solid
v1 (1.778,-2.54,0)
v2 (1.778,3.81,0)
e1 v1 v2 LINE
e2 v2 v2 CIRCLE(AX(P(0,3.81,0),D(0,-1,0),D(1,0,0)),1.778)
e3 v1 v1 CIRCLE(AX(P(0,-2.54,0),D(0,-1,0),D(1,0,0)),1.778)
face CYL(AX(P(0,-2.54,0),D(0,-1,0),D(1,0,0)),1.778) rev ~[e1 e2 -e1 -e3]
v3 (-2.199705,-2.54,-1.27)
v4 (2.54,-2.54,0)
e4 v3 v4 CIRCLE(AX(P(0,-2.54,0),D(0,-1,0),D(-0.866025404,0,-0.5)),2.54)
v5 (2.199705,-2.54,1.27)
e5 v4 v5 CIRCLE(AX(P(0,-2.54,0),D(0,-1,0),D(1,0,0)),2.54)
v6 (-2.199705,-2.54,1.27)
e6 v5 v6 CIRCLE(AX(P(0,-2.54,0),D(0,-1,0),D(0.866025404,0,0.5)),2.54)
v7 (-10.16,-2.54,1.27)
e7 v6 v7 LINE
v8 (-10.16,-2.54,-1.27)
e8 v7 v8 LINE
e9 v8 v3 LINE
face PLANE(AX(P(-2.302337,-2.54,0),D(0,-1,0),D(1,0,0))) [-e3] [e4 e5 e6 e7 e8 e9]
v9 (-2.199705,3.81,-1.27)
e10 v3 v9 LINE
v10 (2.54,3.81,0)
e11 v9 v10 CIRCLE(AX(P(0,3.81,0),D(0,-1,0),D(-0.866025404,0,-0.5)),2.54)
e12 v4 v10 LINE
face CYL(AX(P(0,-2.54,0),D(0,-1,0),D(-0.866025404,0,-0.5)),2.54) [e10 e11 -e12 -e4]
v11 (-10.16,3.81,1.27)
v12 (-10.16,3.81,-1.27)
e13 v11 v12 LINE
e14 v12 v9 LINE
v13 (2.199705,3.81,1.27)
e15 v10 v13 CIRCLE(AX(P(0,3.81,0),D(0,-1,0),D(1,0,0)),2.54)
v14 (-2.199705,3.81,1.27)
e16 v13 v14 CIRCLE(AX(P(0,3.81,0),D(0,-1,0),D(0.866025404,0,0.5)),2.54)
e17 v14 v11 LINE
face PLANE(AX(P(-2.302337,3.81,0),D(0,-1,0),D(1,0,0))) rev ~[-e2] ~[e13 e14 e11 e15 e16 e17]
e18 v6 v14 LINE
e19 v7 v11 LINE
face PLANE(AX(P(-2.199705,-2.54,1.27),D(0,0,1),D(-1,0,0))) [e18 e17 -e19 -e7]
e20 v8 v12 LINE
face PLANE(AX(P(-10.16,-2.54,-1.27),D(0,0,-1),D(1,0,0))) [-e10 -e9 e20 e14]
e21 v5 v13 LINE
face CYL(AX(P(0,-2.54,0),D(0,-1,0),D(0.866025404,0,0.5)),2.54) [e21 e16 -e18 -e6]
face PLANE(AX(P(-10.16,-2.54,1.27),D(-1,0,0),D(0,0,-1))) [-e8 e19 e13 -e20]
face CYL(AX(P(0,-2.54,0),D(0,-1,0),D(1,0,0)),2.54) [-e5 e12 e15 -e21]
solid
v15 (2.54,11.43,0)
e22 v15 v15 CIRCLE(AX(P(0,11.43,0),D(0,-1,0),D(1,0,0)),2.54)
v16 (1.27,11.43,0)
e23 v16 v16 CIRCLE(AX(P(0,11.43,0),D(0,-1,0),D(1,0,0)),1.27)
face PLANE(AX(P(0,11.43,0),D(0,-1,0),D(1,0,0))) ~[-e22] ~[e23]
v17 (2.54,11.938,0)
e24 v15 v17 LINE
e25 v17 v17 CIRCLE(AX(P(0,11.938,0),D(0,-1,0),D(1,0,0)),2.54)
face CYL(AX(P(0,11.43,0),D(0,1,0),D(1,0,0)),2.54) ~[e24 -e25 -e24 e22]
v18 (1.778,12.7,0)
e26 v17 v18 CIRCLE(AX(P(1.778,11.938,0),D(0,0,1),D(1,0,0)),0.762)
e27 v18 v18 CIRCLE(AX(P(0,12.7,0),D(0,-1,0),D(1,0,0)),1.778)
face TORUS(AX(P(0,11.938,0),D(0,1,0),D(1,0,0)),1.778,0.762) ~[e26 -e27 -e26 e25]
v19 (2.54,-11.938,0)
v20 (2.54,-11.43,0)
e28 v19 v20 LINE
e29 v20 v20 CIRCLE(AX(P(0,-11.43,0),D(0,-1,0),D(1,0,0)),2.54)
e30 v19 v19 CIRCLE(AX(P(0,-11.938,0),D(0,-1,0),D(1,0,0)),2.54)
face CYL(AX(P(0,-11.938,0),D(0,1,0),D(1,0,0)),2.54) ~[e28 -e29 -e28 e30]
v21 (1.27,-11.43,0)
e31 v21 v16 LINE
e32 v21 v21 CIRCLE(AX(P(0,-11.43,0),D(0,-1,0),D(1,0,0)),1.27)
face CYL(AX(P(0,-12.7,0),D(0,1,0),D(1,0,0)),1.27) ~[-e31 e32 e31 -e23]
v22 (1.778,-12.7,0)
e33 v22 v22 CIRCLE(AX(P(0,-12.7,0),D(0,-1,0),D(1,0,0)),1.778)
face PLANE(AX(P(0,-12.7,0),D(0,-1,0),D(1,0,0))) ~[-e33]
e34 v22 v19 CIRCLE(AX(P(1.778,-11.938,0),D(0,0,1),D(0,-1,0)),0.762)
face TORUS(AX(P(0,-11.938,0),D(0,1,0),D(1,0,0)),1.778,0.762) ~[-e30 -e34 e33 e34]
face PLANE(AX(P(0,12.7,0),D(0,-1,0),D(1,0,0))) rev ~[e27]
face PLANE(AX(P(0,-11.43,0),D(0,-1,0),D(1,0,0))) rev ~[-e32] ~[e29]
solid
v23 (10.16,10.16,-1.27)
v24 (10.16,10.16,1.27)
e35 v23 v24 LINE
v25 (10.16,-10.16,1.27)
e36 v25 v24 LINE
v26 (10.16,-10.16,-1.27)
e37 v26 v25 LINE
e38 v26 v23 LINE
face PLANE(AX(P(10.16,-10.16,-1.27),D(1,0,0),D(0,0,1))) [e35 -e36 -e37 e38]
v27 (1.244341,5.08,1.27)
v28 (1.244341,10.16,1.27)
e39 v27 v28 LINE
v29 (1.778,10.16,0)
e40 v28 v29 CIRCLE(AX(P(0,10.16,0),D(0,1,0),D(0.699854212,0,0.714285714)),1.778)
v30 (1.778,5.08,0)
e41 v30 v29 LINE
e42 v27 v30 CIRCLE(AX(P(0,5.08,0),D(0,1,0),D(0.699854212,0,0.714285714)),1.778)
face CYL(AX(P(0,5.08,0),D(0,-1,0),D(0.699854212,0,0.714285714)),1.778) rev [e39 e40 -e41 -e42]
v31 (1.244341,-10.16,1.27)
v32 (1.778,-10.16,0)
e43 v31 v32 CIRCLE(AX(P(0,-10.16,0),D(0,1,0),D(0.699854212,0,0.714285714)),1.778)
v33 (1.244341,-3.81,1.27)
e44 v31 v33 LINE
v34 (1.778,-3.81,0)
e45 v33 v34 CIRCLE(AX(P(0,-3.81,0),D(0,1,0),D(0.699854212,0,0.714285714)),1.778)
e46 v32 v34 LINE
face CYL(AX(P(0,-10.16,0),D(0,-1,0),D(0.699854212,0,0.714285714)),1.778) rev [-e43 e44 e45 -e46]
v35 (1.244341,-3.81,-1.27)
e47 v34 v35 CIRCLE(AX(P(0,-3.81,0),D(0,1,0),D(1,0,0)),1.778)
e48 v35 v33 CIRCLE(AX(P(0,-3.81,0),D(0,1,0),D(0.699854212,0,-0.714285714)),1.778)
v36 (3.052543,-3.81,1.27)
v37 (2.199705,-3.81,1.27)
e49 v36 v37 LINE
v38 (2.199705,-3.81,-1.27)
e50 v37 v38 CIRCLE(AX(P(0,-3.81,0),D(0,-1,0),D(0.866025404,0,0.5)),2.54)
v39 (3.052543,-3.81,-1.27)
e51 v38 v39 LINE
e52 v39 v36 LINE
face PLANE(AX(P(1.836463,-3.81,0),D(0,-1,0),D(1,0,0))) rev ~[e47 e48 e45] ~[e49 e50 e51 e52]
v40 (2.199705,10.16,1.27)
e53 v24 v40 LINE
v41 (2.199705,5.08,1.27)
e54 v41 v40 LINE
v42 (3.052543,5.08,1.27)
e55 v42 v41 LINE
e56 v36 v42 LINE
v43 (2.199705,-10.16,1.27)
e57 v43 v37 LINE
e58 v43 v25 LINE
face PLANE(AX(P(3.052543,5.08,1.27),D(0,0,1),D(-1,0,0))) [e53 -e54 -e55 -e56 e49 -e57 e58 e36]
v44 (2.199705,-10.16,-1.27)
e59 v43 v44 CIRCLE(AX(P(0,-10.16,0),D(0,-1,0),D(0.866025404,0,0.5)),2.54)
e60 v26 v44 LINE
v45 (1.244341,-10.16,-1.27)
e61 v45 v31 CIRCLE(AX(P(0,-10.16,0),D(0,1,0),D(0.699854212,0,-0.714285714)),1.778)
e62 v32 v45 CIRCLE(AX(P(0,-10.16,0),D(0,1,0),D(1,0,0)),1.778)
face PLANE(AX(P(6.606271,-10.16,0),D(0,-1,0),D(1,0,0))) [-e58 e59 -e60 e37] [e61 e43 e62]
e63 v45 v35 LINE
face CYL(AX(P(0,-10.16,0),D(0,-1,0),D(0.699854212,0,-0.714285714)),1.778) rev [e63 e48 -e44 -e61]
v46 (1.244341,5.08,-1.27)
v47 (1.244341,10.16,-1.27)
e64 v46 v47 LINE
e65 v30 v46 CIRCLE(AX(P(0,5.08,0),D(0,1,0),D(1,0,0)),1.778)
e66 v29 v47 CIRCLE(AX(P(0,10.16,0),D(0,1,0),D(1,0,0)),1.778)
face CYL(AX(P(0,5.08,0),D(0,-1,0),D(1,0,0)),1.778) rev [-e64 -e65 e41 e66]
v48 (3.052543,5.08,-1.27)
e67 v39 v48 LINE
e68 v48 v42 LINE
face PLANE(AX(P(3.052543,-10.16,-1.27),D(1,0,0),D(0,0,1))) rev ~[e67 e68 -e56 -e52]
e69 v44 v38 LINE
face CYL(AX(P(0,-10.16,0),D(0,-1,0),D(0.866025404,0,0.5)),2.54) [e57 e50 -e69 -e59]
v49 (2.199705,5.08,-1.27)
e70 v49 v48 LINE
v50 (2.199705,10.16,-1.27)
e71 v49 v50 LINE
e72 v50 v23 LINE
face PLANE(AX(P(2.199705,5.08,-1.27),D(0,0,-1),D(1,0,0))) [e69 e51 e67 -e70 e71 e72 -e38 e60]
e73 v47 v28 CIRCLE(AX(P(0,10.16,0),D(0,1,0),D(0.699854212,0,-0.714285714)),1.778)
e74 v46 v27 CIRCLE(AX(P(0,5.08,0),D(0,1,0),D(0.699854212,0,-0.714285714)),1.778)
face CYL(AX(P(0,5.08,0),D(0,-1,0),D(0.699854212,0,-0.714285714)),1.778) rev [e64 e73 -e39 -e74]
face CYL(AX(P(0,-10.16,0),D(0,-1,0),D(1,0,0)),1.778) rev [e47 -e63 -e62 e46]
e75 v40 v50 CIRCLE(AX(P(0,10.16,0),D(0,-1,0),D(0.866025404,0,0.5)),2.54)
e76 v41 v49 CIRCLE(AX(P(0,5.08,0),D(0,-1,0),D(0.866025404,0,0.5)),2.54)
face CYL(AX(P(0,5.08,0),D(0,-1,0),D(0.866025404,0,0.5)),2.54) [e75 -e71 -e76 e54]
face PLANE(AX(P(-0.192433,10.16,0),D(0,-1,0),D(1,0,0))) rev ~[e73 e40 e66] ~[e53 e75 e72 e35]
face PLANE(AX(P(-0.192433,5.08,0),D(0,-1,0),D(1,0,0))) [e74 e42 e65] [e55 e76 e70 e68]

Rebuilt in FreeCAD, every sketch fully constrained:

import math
import FreeCAD as App
import Part
import Sketcher
from FreeCAD import Vector
Q = App.Units.Quantity


def add_polygon(sketch, points):
    """Adds a closed chain of lines whose ends are joined by coincident constraints."""
    first, n = sketch.GeometryCount, len(points)
    for a, b in zip(points, points[1:] + points[:1]):
        sketch.addGeometry(Part.LineSegment(App.Vector(*a, 0), App.Vector(*b, 0)), False)
    for i in range(n):
        sketch.addConstraint(Sketcher.Constraint("Coincident", first + i, 2, first + (i + 1) % n, 1))

doc = App.newDocument("Part")
body = doc.addObject("PartDesign::Body", "Body")

# Sketch on XY plane
sketch1 = doc.addObject("Sketcher::SketchObject", "Sketch")
body.addObject(sketch1)
sketch1.AttachmentSupport = (doc.XY_Plane, [""])
sketch1.MapMode = "FlatFace"
sketch1.addGeometry(Part.LineSegment(Vector(1.8, 12.7, 0), Vector(0, 12.7, 0)), False)
sketch1.addGeometry(Part.LineSegment(Vector(0, 12.7, 0), Vector(0, -12.7, 0)), False)
sketch1.addGeometry(Part.LineSegment(Vector(0, -12.7, 0), Vector(1.8, -12.7, 0)), False)
sketch1.addGeometry(Part.ArcOfCircle(Part.Circle(Vector(1.8, -11.9, 0), Vector(0, 0, 1), 0.8), math.radians(-90), math.radians(0)), False)
sketch1.addGeometry(Part.LineSegment(Vector(2.5, -11.9, 0), Vector(2.5, -11.4, 0)), False)
sketch1.addGeometry(Part.LineSegment(Vector(2.5, -11.4, 0), Vector(1.3, -11.4, 0)), False)
sketch1.addGeometry(Part.LineSegment(Vector(1.3, -11.4, 0), Vector(1.3, 11.4, 0)), False)
sketch1.addGeometry(Part.LineSegment(Vector(1.3, 11.4, 0), Vector(2.5, 11.4, 0)), False)
sketch1.addGeometry(Part.LineSegment(Vector(2.5, 11.4, 0), Vector(2.5, 11.9, 0)), False)
sketch1.addGeometry(Part.ArcOfCircle(Part.Circle(Vector(1.8, 11.9, 0), Vector(0, 0, 1), 0.8), math.radians(0), math.radians(90)), False)
sketch1.addConstraint(Sketcher.Constraint("Coincident", 0, 2, 1, 1))
sketch1.addConstraint(Sketcher.Constraint("Coincident", 1, 2, 2, 1))
sketch1.addConstraint(Sketcher.Constraint("Tangent", 2, 2, 3, 1))
sketch1.addConstraint(Sketcher.Constraint("Tangent", 3, 2, 4, 1))
sketch1.addConstraint(Sketcher.Constraint("Coincident", 4, 2, 5, 1))
sketch1.addConstraint(Sketcher.Constraint("Coincident", 5, 2, 6, 1))
sketch1.addConstraint(Sketcher.Constraint("Coincident", 6, 2, 7, 1))
sketch1.addConstraint(Sketcher.Constraint("Coincident", 7, 2, 8, 1))
sketch1.addConstraint(Sketcher.Constraint("Tangent", 8, 2, 9, 1))
sketch1.addConstraint(Sketcher.Constraint("Tangent", 9, 2, 0, 1))
sketch1.addConstraint(Sketcher.Constraint("Horizontal", 0))
sketch1.addConstraint(Sketcher.Constraint("Vertical", 1))
sketch1.addConstraint(Sketcher.Constraint("Horizontal", 2))
sketch1.addConstraint(Sketcher.Constraint("Vertical", 4))
sketch1.addConstraint(Sketcher.Constraint("Horizontal", 5))
sketch1.addConstraint(Sketcher.Constraint("Vertical", 6))
sketch1.addConstraint(Sketcher.Constraint("Horizontal", 7))
sketch1.addConstraint(Sketcher.Constraint("Vertical", 8))
sketch1.addConstraint(Sketcher.Constraint("Equal", 3, 9))
sketch1.addConstraint(Sketcher.Constraint("Symmetric", 0, 2, 1, 2, -1, 1))
sketch1.addConstraint(Sketcher.Constraint("Symmetric", 4, 2, 7, 2, -1))
sketch1.addConstraint(Sketcher.Constraint("DistanceY", 1, 2, 1, 1, Q("1 in")))
sketch1.addConstraint(Sketcher.Constraint("Radius", 3, Q("0.03 in")))
sketch1.addConstraint(Sketcher.Constraint("DistanceY", 6, 1, 6, 2, Q("0.9 in")))
sketch1.addConstraint(Sketcher.Constraint("DistanceX", 0, 2, 0, 1, Q("0.07 in")))
sketch1.addConstraint(Sketcher.Constraint("DistanceX", 5, 2, 5, 1, Q("0.05 in")))
revolution = doc.addObject("PartDesign::Revolution", "Revolution")
body.addObject(revolution)
revolution.Profile = sketch1
revolution.ReferenceAxis = (sketch1, ["V_Axis"])
revolution.Angle = 360
body2 = doc.addObject("PartDesign::Body", "Body001")

# Sketch on XZ plane
sketch2 = doc.addObject("Sketcher::SketchObject", "Sketch001")
body2.addObject(sketch2)
sketch2.AttachmentSupport = (doc.getObject("XZ_Plane001"), [""])
sketch2.MapMode = "FlatFace"
sketch2.AttachmentOffset = App.Placement(Vector(0, 0, 0.4 * 25.4), App.Rotation())
sketch2.addGeometry(Part.LineSegment(Vector(2.2, -1.3, 0), Vector(3.1, -1.3, 0)), False)
sketch2.addGeometry(Part.LineSegment(Vector(3.1, -1.3, 0), Vector(3.1, 1.3, 0)), False)
sketch2.addGeometry(Part.LineSegment(Vector(3.1, 1.3, 0), Vector(2.2, 1.3, 0)), False)
sketch2.addGeometry(Part.ArcOfCircle(Part.Circle(Vector(0, 0, 0), Vector(0, 0, 1), 2.5), math.radians(30), math.radians(330)), False)
sketch2.addGeometry(Part.ArcOfCircle(Part.Circle(Vector(0, 0, 0), Vector(0, 0, 1), 1.8), math.radians(0), math.radians(46)), False)
sketch2.addGeometry(Part.ArcOfCircle(Part.Circle(Vector(0, 0, 0), Vector(0, 0, 1), 1.8), math.radians(-46), math.radians(0)), False)
sketch2.addGeometry(Part.ArcOfCircle(Part.Circle(Vector(0, 0, 0), Vector(0, 0, 1), 1.8), math.radians(46), math.radians(314)), False)
sketch2.addConstraint(Sketcher.Constraint("Coincident", 0, 2, 1, 1))
sketch2.addConstraint(Sketcher.Constraint("Coincident", 1, 2, 2, 1))
sketch2.addConstraint(Sketcher.Constraint("Coincident", 2, 2, 3, 1))
sketch2.addConstraint(Sketcher.Constraint("Coincident", 3, 2, 0, 1))
sketch2.addConstraint(Sketcher.Constraint("Tangent", 4, 1, 5, 2))
sketch2.addConstraint(Sketcher.Constraint("Tangent", 5, 1, 6, 2))
sketch2.addConstraint(Sketcher.Constraint("Tangent", 6, 1, 4, 2))
sketch2.addConstraint(Sketcher.Constraint("Horizontal", 0))
sketch2.addConstraint(Sketcher.Constraint("Vertical", 1))
sketch2.addConstraint(Sketcher.Constraint("Horizontal", 2))
sketch2.addConstraint(Sketcher.Constraint("Coincident", 3, 3, -1, 1))
sketch2.addConstraint(Sketcher.Constraint("Coincident", 4, 3, -1, 1))
sketch2.addConstraint(Sketcher.Constraint("PointOnObject", 4, 1, -1))
sketch2.addConstraint(Sketcher.Constraint("Horizontal", 3, 2, 5, 1))
sketch2.addConstraint(Sketcher.Constraint("Horizontal", 2, 2, 6, 1))
sketch2.addConstraint(Sketcher.Constraint("Vertical", 2, 2, 3, 2))
sketch2.addConstraint(Sketcher.Constraint("Radius", 3, Q("0.1 in")))
sketch2.addConstraint(Sketcher.Constraint("Radius", 4, Q("0.07 in")))
sketch2.addConstraint(Sketcher.Constraint("DistanceY", 1, 1, 1, 2, Q("0.1 in")))
sketch2.addConstraint(Sketcher.Constraint("DistanceX", 0, 1, 0, 2, 0.852838))
pad1 = doc.addObject("PartDesign::Pad", "Pad")
body2.addObject(pad1)
pad1.Profile = sketch2
pad1.Length = Q("0.25 in")
pad1.Reversed = True

# Sketch on XZ plane
sketch3 = doc.addObject("Sketcher::SketchObject", "Sketch002")
body2.addObject(sketch3)
sketch3.AttachmentSupport = (doc.getObject("XZ_Plane001"), [""])
sketch3.MapMode = "FlatFace"
sketch3.AttachmentOffset = App.Placement(Vector(0, 0, 0.4 * 25.4), App.Rotation())
add_polygon(sketch3, [(3.1, 1.3), (3.1, -1.3), (10.2, -1.3), (10.2, 1.3)])  # lines 0-3
sketch3.addConstraint(Sketcher.Constraint("Vertical", 0))
sketch3.addConstraint(Sketcher.Constraint("Horizontal", 1))
sketch3.addConstraint(Sketcher.Constraint("Vertical", 2))
sketch3.addConstraint(Sketcher.Constraint("Horizontal", 3))
sketch3.addConstraint(Sketcher.Constraint("DistanceY", 0, 2, 0, 1, Q("0.1 in")))
sketch3.addConstraint(Sketcher.Constraint("DistanceX", -1, 1, 1, 2, Q("0.4 in")))
sketch3.addConstraint(Sketcher.Constraint("DistanceY", 0, 2, -1, 1, Q("0.05 in")))
sketch3.addConstraint(Sketcher.Constraint("DistanceX", 1, 1, 1, 2, 7.107457))
pad2 = doc.addObject("PartDesign::Pad", "Pad001")
body2.addObject(pad2)
pad2.Profile = sketch3
pad2.Length = Q("0.8 in")
pad2.Reversed = True

# Sketch on XZ plane
sketch4 = doc.addObject("Sketcher::SketchObject", "Sketch003")
body2.addObject(sketch4)
sketch4.AttachmentSupport = (doc.getObject("XZ_Plane001"), [""])
sketch4.MapMode = "FlatFace"
sketch4.AttachmentOffset = App.Placement(Vector(0, 0, -0.2 * 25.4), App.Rotation())
sketch4.addGeometry(Part.ArcOfCircle(Part.Circle(Vector(0, 0, 0), Vector(0, 0, 1), 2.5), math.radians(30), math.radians(330)), False)
sketch4.addGeometry(Part.LineSegment(Vector(2.2, -1.3, 0), Vector(3.1, -1.3, 0)), False)
sketch4.addGeometry(Part.LineSegment(Vector(3.1, -1.3, 0), Vector(3.1, 1.3, 0)), False)
sketch4.addGeometry(Part.LineSegment(Vector(3.1, 1.3, 0), Vector(2.2, 1.3, 0)), False)
sketch4.addGeometry(Part.ArcOfCircle(Part.Circle(Vector(0, 0, 0), Vector(0, 0, 1), 1.8), math.radians(46), math.radians(314)), False)
sketch4.addGeometry(Part.ArcOfCircle(Part.Circle(Vector(0, 0, 0), Vector(0, 0, 1), 1.8), math.radians(0), math.radians(46)), False)
sketch4.addGeometry(Part.ArcOfCircle(Part.Circle(Vector(0, 0, 0), Vector(0, 0, 1), 1.8), math.radians(-46), math.radians(0)), False)
sketch4.addConstraint(Sketcher.Constraint("Coincident", 0, 2, 1, 1))
sketch4.addConstraint(Sketcher.Constraint("Coincident", 1, 2, 2, 1))
sketch4.addConstraint(Sketcher.Constraint("Coincident", 2, 2, 3, 1))
sketch4.addConstraint(Sketcher.Constraint("Coincident", 3, 2, 0, 1))
sketch4.addConstraint(Sketcher.Constraint("Tangent", 4, 1, 5, 2))
sketch4.addConstraint(Sketcher.Constraint("Tangent", 5, 1, 6, 2))
sketch4.addConstraint(Sketcher.Constraint("Tangent", 6, 1, 4, 2))
sketch4.addConstraint(Sketcher.Constraint("Horizontal", 1))
sketch4.addConstraint(Sketcher.Constraint("Vertical", 2))
sketch4.addConstraint(Sketcher.Constraint("Horizontal", 3))
sketch4.addConstraint(Sketcher.Constraint("Coincident", 0, 3, -1, 1))
sketch4.addConstraint(Sketcher.Constraint("Coincident", 4, 3, -1, 1))
sketch4.addConstraint(Sketcher.Constraint("PointOnObject", 5, 1, -1))
sketch4.addConstraint(Sketcher.Constraint("Horizontal", 3, 2, 4, 1))
sketch4.addConstraint(Sketcher.Constraint("Horizontal", 1, 2, 6, 1))
sketch4.addConstraint(Sketcher.Constraint("Vertical", 0, 2, 3, 2))
sketch4.addConstraint(Sketcher.Constraint("Radius", 0, Q("0.1 in")))
sketch4.addConstraint(Sketcher.Constraint("Radius", 4, Q("0.07 in")))
sketch4.addConstraint(Sketcher.Constraint("DistanceY", 2, 1, 2, 2, Q("0.1 in")))
sketch4.addConstraint(Sketcher.Constraint("DistanceX", 1, 1, 1, 2, 0.852838))
pad3 = doc.addObject("PartDesign::Pad", "Pad002")
body2.addObject(pad3)
pad3.Profile = sketch4
pad3.Length = Q("0.2 in")
pad3.Reversed = True
body3 = doc.addObject("PartDesign::Body", "Body002")

# Sketch on XZ plane
sketch5 = doc.addObject("Sketcher::SketchObject", "Sketch004")
body3.addObject(sketch5)
sketch5.AttachmentSupport = (doc.getObject("XZ_Plane002"), [""])
sketch5.MapMode = "FlatFace"
sketch5.AttachmentOffset = App.Placement(Vector(0, 0, 0.1 * 25.4), App.Rotation())
sketch5.addGeometry(Part.ArcOfCircle(Part.Circle(Vector(0, 0, 0), Vector(0, 0, 1), 2.5), math.radians(-150), math.radians(0)), False)
sketch5.addGeometry(Part.ArcOfCircle(Part.Circle(Vector(0, 0, 0), Vector(0, 0, 1), 2.5), math.radians(0), math.radians(30)), False)
sketch5.addGeometry(Part.ArcOfCircle(Part.Circle(Vector(0, 0, 0), Vector(0, 0, 1), 2.5), math.radians(30), math.radians(150)), False)
sketch5.addGeometry(Part.LineSegment(Vector(-2.2, 1.3, 0), Vector(-10.2, 1.3, 0)), False)
sketch5.addGeometry(Part.LineSegment(Vector(-10.2, 1.3, 0), Vector(-10.2, -1.3, 0)), False)
sketch5.addGeometry(Part.LineSegment(Vector(-10.2, -1.3, 0), Vector(-2.2, -1.3, 0)), False)
sketch5.addGeometry(Part.Circle(Vector(0, 0, 0), Vector(0, 0, 1), 1.8), False)
sketch5.addConstraint(Sketcher.Constraint("Tangent", 0, 2, 1, 1))
sketch5.addConstraint(Sketcher.Constraint("Tangent", 1, 2, 2, 1))
sketch5.addConstraint(Sketcher.Constraint("Coincident", 2, 2, 3, 1))
sketch5.addConstraint(Sketcher.Constraint("Coincident", 3, 2, 4, 1))
sketch5.addConstraint(Sketcher.Constraint("Coincident", 4, 2, 5, 1))
sketch5.addConstraint(Sketcher.Constraint("Coincident", 5, 2, 0, 1))
sketch5.addConstraint(Sketcher.Constraint("Horizontal", 3))
sketch5.addConstraint(Sketcher.Constraint("Vertical", 4))
sketch5.addConstraint(Sketcher.Constraint("Horizontal", 5))
sketch5.addConstraint(Sketcher.Constraint("Coincident", 0, 3, -1, 1))
sketch5.addConstraint(Sketcher.Constraint("Coincident", 2, 3, -1, 1))
sketch5.addConstraint(Sketcher.Constraint("Coincident", 6, 3, -1, 1))
sketch5.addConstraint(Sketcher.Constraint("PointOnObject", 0, 2, -1))
sketch5.addConstraint(Sketcher.Constraint("Horizontal", 1, 2, 2, 2))
sketch5.addConstraint(Sketcher.Constraint("Vertical", 2, 2, 5, 2))
sketch5.addConstraint(Sketcher.Constraint("Radius", 0, Q("0.1 in")))
sketch5.addConstraint(Sketcher.Constraint("Diameter", 6, Q("0.14 in")))
sketch5.addConstraint(Sketcher.Constraint("DistanceY", 4, 2, 4, 1, Q("0.1 in")))
sketch5.addConstraint(Sketcher.Constraint("DistanceX", 3, 2, -1, 1, Q("0.4 in")))
pad4 = doc.addObject("PartDesign::Pad", "Pad003")
body3.addObject(pad4)
pad4.Profile = sketch5
pad4.Length = Q("0.25 in")
pad4.Reversed = True

doc.recompute()
